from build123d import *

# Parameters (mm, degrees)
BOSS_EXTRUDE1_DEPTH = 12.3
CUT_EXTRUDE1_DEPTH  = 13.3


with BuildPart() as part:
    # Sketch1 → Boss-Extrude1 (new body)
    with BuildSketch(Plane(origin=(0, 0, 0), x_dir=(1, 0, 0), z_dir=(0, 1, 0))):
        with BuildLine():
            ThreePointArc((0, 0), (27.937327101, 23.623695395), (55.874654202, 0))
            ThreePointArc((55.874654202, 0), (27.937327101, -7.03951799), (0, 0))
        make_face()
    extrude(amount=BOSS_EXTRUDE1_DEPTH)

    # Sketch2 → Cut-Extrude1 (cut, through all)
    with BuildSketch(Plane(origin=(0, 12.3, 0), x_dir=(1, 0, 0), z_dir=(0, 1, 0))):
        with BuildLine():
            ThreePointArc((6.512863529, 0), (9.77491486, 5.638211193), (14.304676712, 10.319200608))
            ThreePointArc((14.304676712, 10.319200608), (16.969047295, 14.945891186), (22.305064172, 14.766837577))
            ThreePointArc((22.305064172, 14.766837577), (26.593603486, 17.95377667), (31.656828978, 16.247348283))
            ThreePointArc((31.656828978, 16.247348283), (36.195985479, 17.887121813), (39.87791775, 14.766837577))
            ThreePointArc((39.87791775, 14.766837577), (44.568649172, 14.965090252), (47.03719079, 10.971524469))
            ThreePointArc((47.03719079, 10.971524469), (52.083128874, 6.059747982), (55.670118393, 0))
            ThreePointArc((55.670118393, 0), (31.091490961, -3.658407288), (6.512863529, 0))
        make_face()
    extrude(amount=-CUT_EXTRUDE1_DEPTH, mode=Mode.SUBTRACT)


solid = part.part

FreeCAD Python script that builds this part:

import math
import FreeCAD as App
import Part
import Sketcher
from FreeCAD import Vector

doc = App.newDocument("Part")
params = doc.addObject("Spreadsheet::Sheet", "Params")
for row, (alias, value) in enumerate([
    ("pad1_length", "12.3 mm"),
], start=1):
    params.set(f"A{row}", alias)
    params.set(f"B{row}", "=" + value)
    params.setAlias(f"B{row}", alias)

body = doc.addObject("PartDesign::Body", "Body")

sketch1 = doc.addObject("Sketcher::SketchObject", "Sketch")
body.addObject(sketch1)
sketch1.AttachmentSupport = (doc.XZ_Plane, [""])
sketch1.MapMode = "FlatFace"
sketch1.addGeometry([
    Part.ArcOfCircle(Part.Circle(Vector(28, 5, 0), Vector(0, 0, 1), 28), math.radians(-170), math.radians(-10)),
    Part.ArcOfCircle(Part.Circle(Vector(28, -52, 0), Vector(0, 0, 1), 59), math.radians(62), math.radians(118)),
], False)
sketch1.addConstraint([
    Sketcher.Constraint("Coincident", 0, 1, 1, 2),
    Sketcher.Constraint("Coincident", 1, 1, 0, 2),
    Sketcher.Constraint("Coincident", 0, 1, -1, 1),
    Sketcher.Constraint("PointOnObject", 1, 1, -1),
    Sketcher.Constraint("Radius", 0, 28.331157),
    Sketcher.Constraint("Radius", 1, 58.956385),
    Sketcher.Constraint("DistanceY", -1, 1, 0, 3, 4.707461),
])
pad1 = doc.addObject("PartDesign::Pad", "Pad")
body.addObject(pad1)
pad1.Profile = sketch1
pad1.setExpression("Length", "Params.pad1_length")
pad1.Reversed = True

sketch2 = doc.addObject("Sketcher::SketchObject", "Sketch001")
body.addObject(sketch2)
sketch2.AttachmentSupport = (doc.XZ_Plane, [""])
sketch2.MapMode = "FlatFace"
sketch2.AttachmentOffset = App.Placement(Vector(0, 0, -12.3), App.Rotation())
sketch2.addGeometry([
    Part.ArcOfCircle(Part.Circle(Vector(31.1, 10.5, 0), Vector(0, 0, 1), 26.7), math.radians(-157), math.radians(-129)),
    Part.ArcOfCircle(Part.Circle(Vector(31.1, -80.7, 0), Vector(0, 0, 1), 84.4), math.radians(73), math.radians(107)),
    Part.ArcOfCircle(Part.Circle(Vector(31.1, 10.5, 0), Vector(0, 0, 1), 26.7), math.radians(-53), math.radians(-23)),
    Part.ArcOfCircle(Part.Circle(Vector(42.4, -10.9, 0), Vector(0, 0, 1), 4.6), math.radians(-123), math.radians(-1)),
    Part.ArcOfCircle(Part.Circle(Vector(35.3, -13.1, 0), Vector(0, 0, 1), 4.8), math.radians(-140), math.radians(-20)),
    Part.ArcOfCircle(Part.Circle(Vector(27.5, -12.3, 0), Vector(0, 0, 1), 5.8), math.radians(-154), math.radians(-44)),
    Part.ArcOfCircle(Part.Circle(Vector(19.5, -10.4, 0), Vector(0, 0, 1), 5.2), math.radians(179), math.radians(303)),
], False)
sketch2.addConstraint([
    Sketcher.Constraint("Coincident", 0, 1, 1, 2),
    Sketcher.Constraint("Coincident", 1, 1, 2, 2),
    Sketcher.Constraint("Coincident", 2, 1, 3, 2),
    Sketcher.Constraint("Coincident", 3, 1, 4, 2),
    Sketcher.Constraint("Coincident", 4, 1, 5, 2),
    Sketcher.Constraint("Coincident", 5, 1, 6, 2),
    Sketcher.Constraint("Coincident", 6, 1, 0, 2),
    Sketcher.Constraint("Coincident", 2, 3, 0, 3),
    Sketcher.Constraint("Equal", 0, 2),
    Sketcher.Constraint("PointOnObject", 0, 1, -1),
    Sketcher.Constraint("PointOnObject", 1, 1, -1),
    Sketcher.Constraint("Horizontal", 3, 1, 5, 1),
    Sketcher.Constraint("Radius", 3, 4.64594),
    Sketcher.Constraint("Radius", 6, 5.18422),
    Sketcher.Constraint("Radius", 0, 26.710823),
    Sketcher.Constraint("Radius", 1, 84.393675),
    Sketcher.Constraint("Radius", 4, 4.815916),
    Sketcher.Constraint("Radius", 5, 5.762286),
    Sketcher.Constraint("DistanceY", 6, 1, -1, 1, 10.319201),
    Sketcher.Constraint("DistanceX", 0, 3, 2, 1, 15.9457),
    Sketcher.Constraint("DistanceY", 4, 1, 4, 3, 3.099898),
    Sketcher.Constraint("DistanceX", 5, 3, 4, 1, 4.162199),
    Sketcher.Constraint("DistanceX", -1, 1, 0, 3, 31.091491),
    Sketcher.Constraint("DistanceY", -1, 1, 0, 3, 10.457491),
    Sketcher.Constraint("DistanceY", 4, 3, -1, 1, 13.14745),
    Sketcher.Constraint("DistanceX", -1, 1, 5, 3, 27.49463),
    Sketcher.Constraint("DistanceX", 0, 3, 3, 3, 11.301092),
])
pocket1 = doc.addObject("PartDesign::Pocket", "Pocket")
body.addObject(pocket1)
pocket1.Profile = sketch2
pocket1.Type = "ThroughAll"
pocket1.Reversed = True

doc.recompute()
